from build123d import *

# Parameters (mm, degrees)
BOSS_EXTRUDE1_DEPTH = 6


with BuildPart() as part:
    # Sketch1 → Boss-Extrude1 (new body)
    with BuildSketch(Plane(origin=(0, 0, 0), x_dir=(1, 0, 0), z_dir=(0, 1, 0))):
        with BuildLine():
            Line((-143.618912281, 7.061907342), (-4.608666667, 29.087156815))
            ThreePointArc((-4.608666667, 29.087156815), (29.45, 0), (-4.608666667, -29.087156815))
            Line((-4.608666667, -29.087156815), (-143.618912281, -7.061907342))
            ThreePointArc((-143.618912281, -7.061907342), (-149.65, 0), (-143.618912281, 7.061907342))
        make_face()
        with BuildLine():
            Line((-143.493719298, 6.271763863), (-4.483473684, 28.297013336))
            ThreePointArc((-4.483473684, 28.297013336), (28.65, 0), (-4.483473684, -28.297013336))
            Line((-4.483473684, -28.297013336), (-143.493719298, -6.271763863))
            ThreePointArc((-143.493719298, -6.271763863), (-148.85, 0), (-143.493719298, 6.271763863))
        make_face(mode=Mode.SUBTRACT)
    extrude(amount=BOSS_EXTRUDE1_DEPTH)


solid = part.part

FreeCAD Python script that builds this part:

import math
import FreeCAD as App
import Part
import Sketcher

V = App.Vector
Q = App.Units.Quantity

doc = App.newDocument("Part")
body = doc.addObject("PartDesign::Body", "Body")

sketch1 = doc.addObject("Sketcher::SketchObject", "Sketch")
body.addObject(sketch1)
sketch1.AttachmentSupport = (doc.XZ_Plane, [""])
sketch1.MapMode = "FlatFace"
sketch1.addGeometry([
    Part.LineSegment(V(-5, -29, 0), V(-144, -7, 0)),
    Part.ArcOfCircle(Part.Circle(V(-142, 0, 0), V(0, 0, 1), 7), math.radians(99), math.radians(261)),
    Part.LineSegment(V(-144, 7, 0), V(-5, 29, 0)),
    Part.ArcOfCircle(Part.Circle(V(0, 0, 0), V(0, 0, 1), 29), math.radians(-99), math.radians(99)),
    Part.LineSegment(V(-143, -6, 0), V(-4, -28, 0)),
    Part.ArcOfCircle(Part.Circle(V(0, 0, 0), V(0, 0, 1), 29), math.radians(-99), math.radians(99)),
    Part.LineSegment(V(-4, 28, 0), V(-143, 6, 0)),
    Part.ArcOfCircle(Part.Circle(V(-142, 0, 0), V(0, 0, 1), 6), math.radians(99), math.radians(261)),
], False)
sketch1.addConstraint([
    Sketcher.Constraint("Tangent", 0, 2, 1, 2),
    Sketcher.Constraint("Tangent", 1, 1, 2, 1),
    Sketcher.Constraint("Tangent", 2, 2, 3, 2),
    Sketcher.Constraint("Tangent", 3, 1, 0, 1),
    Sketcher.Constraint("Tangent", 4, 2, 5, 1),
    Sketcher.Constraint("Tangent", 5, 2, 6, 1),
    Sketcher.Constraint("Tangent", 6, 2, 7, 1),
    Sketcher.Constraint("Tangent", 7, 2, 4, 1),
    Sketcher.Constraint("Coincident", 3, 3, -1, 1),
    Sketcher.Constraint("Coincident", 5, 3, -1, 1),
    Sketcher.Constraint("Coincident", 7, 3, 1, 3),
    Sketcher.Constraint("PointOnObject", 1, 3, -1),
    Sketcher.Constraint("Parallel", 0, 4),
    Sketcher.Constraint("Radius", 1, Q("7.15 mm")),
    Sketcher.Constraint("Radius", 3, Q("29.45 mm")),
    Sketcher.Constraint("Radius", 5, Q("28.65 mm")),
    Sketcher.Constraint("DistanceX", 1, 3, -1, 1, Q("142.5 mm")),
])
pad1 = doc.addObject("PartDesign::Pad", "Pad")
body.addObject(pad1)
pad1.Profile = sketch1
pad1.Length = 6
pad1.Reversed = True

doc.recompute()
